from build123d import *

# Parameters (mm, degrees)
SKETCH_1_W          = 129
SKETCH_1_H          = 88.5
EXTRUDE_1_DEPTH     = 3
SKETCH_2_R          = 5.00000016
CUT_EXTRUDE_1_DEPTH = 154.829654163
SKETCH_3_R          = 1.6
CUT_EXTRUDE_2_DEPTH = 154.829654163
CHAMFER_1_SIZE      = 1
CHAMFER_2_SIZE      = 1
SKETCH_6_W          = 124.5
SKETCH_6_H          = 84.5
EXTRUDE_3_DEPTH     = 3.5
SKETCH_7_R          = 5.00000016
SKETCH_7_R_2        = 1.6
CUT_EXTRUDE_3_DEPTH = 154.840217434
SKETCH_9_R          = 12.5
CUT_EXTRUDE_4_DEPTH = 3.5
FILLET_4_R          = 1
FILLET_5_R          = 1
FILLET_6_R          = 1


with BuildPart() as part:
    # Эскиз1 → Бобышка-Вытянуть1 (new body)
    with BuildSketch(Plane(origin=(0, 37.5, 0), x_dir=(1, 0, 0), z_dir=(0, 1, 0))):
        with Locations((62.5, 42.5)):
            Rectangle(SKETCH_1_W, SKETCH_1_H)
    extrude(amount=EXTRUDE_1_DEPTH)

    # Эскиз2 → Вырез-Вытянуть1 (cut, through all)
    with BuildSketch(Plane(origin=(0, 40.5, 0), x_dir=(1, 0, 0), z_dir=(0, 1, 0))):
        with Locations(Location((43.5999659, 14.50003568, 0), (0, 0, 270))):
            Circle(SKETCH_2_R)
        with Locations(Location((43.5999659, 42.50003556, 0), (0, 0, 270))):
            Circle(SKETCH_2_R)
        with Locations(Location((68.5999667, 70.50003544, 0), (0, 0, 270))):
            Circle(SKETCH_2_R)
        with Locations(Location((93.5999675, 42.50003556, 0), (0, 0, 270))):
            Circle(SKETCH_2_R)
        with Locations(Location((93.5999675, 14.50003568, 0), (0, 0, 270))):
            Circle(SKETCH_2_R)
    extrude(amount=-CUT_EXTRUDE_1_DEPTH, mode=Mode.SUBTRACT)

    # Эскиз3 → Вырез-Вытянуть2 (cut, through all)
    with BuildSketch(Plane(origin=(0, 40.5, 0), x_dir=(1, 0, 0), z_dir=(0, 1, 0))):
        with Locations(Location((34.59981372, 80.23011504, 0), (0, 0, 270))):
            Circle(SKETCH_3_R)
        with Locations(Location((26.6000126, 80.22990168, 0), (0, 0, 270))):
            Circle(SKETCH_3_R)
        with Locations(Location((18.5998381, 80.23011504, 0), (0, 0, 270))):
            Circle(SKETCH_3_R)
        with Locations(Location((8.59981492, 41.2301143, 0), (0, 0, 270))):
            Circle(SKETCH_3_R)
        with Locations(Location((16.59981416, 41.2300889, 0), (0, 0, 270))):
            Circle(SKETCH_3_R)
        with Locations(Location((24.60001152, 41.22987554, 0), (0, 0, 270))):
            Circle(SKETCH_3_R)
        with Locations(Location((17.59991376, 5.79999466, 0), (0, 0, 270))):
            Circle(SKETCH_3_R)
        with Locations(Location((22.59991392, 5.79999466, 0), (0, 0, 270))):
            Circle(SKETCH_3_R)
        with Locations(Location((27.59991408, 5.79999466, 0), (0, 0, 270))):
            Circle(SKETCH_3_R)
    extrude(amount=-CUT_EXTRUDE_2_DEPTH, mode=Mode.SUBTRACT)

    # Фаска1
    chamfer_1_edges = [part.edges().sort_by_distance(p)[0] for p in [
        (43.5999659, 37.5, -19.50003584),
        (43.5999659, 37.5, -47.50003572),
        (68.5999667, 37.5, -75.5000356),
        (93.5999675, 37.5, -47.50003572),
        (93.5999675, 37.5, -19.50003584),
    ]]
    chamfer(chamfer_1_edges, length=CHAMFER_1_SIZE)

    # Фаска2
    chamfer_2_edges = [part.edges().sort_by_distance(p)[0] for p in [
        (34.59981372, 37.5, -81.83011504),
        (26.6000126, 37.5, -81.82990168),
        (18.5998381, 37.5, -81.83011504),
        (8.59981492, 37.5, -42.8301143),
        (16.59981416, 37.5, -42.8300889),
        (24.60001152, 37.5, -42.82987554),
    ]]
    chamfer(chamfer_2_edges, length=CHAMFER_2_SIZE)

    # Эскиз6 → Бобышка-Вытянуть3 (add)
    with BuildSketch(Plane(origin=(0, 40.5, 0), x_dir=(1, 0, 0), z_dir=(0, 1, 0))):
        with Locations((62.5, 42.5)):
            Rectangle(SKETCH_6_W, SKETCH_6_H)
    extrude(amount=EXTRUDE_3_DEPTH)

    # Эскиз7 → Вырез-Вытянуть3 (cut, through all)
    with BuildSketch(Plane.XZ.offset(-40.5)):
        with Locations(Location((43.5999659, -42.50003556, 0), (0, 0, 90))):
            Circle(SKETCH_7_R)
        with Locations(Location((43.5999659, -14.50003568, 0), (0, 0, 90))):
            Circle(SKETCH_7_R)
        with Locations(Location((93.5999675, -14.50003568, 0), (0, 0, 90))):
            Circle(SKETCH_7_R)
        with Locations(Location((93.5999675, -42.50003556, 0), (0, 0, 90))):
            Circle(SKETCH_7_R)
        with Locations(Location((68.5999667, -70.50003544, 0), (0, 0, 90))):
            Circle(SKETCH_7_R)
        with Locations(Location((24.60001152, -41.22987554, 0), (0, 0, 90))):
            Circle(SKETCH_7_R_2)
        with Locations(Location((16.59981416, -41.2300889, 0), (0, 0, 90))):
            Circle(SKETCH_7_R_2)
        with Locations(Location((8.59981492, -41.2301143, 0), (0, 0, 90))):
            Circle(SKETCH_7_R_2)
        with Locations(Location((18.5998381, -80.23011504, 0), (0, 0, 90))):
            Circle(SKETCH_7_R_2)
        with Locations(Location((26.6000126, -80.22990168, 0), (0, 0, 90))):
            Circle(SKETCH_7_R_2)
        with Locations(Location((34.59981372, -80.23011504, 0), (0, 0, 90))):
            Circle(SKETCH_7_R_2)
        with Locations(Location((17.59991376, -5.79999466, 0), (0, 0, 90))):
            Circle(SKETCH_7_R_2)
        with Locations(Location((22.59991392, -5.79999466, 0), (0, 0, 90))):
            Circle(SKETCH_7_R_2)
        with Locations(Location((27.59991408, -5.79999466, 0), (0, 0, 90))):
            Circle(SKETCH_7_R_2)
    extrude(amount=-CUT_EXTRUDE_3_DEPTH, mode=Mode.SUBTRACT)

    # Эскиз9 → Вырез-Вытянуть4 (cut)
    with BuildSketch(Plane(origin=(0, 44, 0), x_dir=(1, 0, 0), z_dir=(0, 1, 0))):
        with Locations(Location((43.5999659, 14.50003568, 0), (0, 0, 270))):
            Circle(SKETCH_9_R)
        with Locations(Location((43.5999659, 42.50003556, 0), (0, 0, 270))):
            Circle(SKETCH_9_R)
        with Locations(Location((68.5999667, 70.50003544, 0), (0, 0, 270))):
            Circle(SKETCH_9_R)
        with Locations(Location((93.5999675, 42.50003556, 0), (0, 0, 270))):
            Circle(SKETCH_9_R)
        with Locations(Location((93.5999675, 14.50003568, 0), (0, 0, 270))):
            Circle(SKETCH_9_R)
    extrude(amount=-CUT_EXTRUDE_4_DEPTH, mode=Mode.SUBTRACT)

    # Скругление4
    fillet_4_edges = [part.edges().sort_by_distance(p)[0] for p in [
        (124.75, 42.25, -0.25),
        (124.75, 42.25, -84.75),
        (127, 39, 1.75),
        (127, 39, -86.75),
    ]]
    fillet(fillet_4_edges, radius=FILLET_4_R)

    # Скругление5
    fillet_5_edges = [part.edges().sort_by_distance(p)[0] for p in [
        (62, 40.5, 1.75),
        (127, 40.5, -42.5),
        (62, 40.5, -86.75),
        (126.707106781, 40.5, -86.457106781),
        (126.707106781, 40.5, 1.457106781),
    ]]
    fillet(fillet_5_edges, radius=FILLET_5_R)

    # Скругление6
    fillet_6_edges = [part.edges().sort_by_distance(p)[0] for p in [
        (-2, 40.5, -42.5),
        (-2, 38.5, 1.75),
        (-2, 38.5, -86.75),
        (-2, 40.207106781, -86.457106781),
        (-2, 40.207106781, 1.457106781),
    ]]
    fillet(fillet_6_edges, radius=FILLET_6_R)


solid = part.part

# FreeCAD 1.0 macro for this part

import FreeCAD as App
import Part
import Sketcher

V = App.Vector


def edges_at(feature, points):
    """Names of the edges that pass closest to the given points."""
    edges = feature.Shape.Edges
    near = lambda p: min(range(len(edges)), key=lambda i: edges[i].distToShape(Part.Vertex(*p))[0])
    return sorted({f"Edge{near(p) + 1}" for p in points})

doc = App.newDocument("Part")
body = doc.addObject("PartDesign::Body", "Body")

# Sketch on XZ plane
sketch1 = body.newObject("Sketcher::SketchObject", "Sketch")
sketch1.AttachmentSupport = (doc.getObject("XZ_Plane"), [""])
sketch1.MapMode = "FlatFace"
sketch1.AttachmentOffset = App.Placement(V(0, 0, -37.5), App.Rotation())
sketch1.addGeometry([
    Part.LineSegment(V(-2, -86.75, 0), V(-2, 1.75, 0)),
    Part.LineSegment(V(-2, 1.75, 0), V(127, 1.75, 0)),
    Part.LineSegment(V(127, 1.75, 0), V(127, -86.75, 0)),
    Part.LineSegment(V(127, -86.75, 0), V(-2, -86.75, 0)),
], False)
sketch1.addConstraint([
    Sketcher.Constraint("Coincident", 0, 2, 1, 1),
    Sketcher.Constraint("Coincident", 1, 2, 2, 1),
    Sketcher.Constraint("Coincident", 2, 2, 3, 1),
    Sketcher.Constraint("Coincident", 3, 2, 0, 1),
    Sketcher.Constraint("Vertical", 0),
    Sketcher.Constraint("Horizontal", 1),
    Sketcher.Constraint("Vertical", 2),
    Sketcher.Constraint("Horizontal", 3),
    Sketcher.Constraint("DistanceX", 1, 1, 1, 2, 129.0),
    Sketcher.Constraint("DistanceY", 0, 1, 0, 2, 88.5),
    Sketcher.Constraint("DistanceX", 0, 2, -1, 1, 2.0),
    Sketcher.Constraint("DistanceY", -1, 1, 0, 2, 1.75),
])
pad1 = body.newObject("PartDesign::Pad", "Pad")
pad1.Profile = sketch1
pad1.Length = 3
pad1.Reversed = True

# Sketch on XZ plane
sketch2 = body.newObject("Sketcher::SketchObject", "Sketch001")
sketch2.AttachmentSupport = (doc.getObject("XZ_Plane"), [""])
sketch2.MapMode = "FlatFace"
sketch2.AttachmentOffset = App.Placement(V(0, 0, -40.5), App.Rotation())
sketch2.addGeometry([
    Part.Circle(V(43.599966, -14.500036, 0), V(0, 0, 1), 5),  # 0
    Part.Circle(V(43.599966, -42.500036, 0), V(0, 0, 1), 5),  # 1
    Part.Circle(V(68.599967, -70.500035, 0), V(0, 0, 1), 5),  # 2
    Part.Circle(V(93.599968, -42.500036, 0), V(0, 0, 1), 5),  # 3
    Part.Circle(V(93.599968, -14.500036, 0), V(0, 0, 1), 5),  # 4
], False)
sketch2.addConstraint([
    Sketcher.Constraint("Equal", 0, 1),
    Sketcher.Constraint("Equal", 1, 2),
    Sketcher.Constraint("Equal", 2, 3),
    Sketcher.Constraint("Equal", 3, 4),
    Sketcher.Constraint("Horizontal", 1, 3, 3, 3),
    Sketcher.Constraint("Horizontal", 0, 3, 4, 3),
    Sketcher.Constraint("Vertical", 0, 3, 1, 3),
    Sketcher.Constraint("Vertical", 3, 3, 4, 3),
    Sketcher.Constraint("Diameter", 0, 10.0),
    Sketcher.Constraint("DistanceY", 1, 3, 0, 3, 28.0),
    Sketcher.Constraint("DistanceX", 1, 3, 2, 3, 25.000001),
    Sketcher.Constraint("DistanceY", 2, 3, 1, 3, 28.0),
    Sketcher.Constraint("DistanceX", 2, 3, 3, 3, 25.000001),
    Sketcher.Constraint("DistanceX", -1, 1, 0, 3, 43.599966),
    Sketcher.Constraint("DistanceY", 0, 3, -1, 1, 14.500036),
])
pocket1 = body.newObject("PartDesign::Pocket", "Pocket")
pocket1.Profile = sketch2
pocket1.Type = "ThroughAll"
pocket1.Reversed = True

# Sketch on XZ plane
sketch3 = body.newObject("Sketcher::SketchObject", "Sketch002")
sketch3.AttachmentSupport = (doc.getObject("XZ_Plane"), [""])
sketch3.MapMode = "FlatFace"
sketch3.AttachmentOffset = App.Placement(V(0, 0, -40.5), App.Rotation())
sketch3.addGeometry([
    Part.Circle(V(34.599814, -80.230115, 0), V(0, 0, 1), 1.6),  # 0
    Part.Circle(V(26.600013, -80.229902, 0), V(0, 0, 1), 1.6),  # 1
    Part.Circle(V(18.599838, -80.230115, 0), V(0, 0, 1), 1.6),  # 2
    Part.Circle(V(8.599815, -41.230114, 0), V(0, 0, 1), 1.6),  # 3
    Part.Circle(V(16.599814, -41.230089, 0), V(0, 0, 1), 1.6),  # 4
    Part.Circle(V(24.600012, -41.229876, 0), V(0, 0, 1), 1.6),  # 5
    Part.Circle(V(17.599914, -5.799995, 0), V(0, 0, 1), 1.6),  # 6
    Part.Circle(V(22.599914, -5.799995, 0), V(0, 0, 1), 1.6),  # 7
    Part.Circle(V(27.599914, -5.799995, 0), V(0, 0, 1), 1.6),  # 8
], False)
sketch3.addConstraint([
    Sketcher.Constraint("Equal", 0, 1),
    Sketcher.Constraint("Equal", 1, 2),
    Sketcher.Constraint("Equal", 2, 3),
    Sketcher.Constraint("Equal", 3, 4),
    Sketcher.Constraint("Equal", 4, 5),
    Sketcher.Constraint("Equal", 5, 6),
    Sketcher.Constraint("Equal", 6, 7),
    Sketcher.Constraint("Equal", 7, 8),
    Sketcher.Constraint("Horizontal", 0, 3, 2, 3),
    Sketcher.Constraint("Horizontal", 6, 3, 7, 3),
    Sketcher.Constraint("Horizontal", 7, 3, 8, 3),
    Sketcher.Constraint("Diameter", 0, 3.2),
    Sketcher.Constraint("DistanceY", 2, 3, 3, 3, 39.000001),
    Sketcher.Constraint("DistanceX", 3, 3, 0, 3, 25.999999),
    Sketcher.Constraint("DistanceX", 3, 3, 4, 3, 7.999999),
    Sketcher.Constraint("DistanceX", 5, 3, 1, 3, 2.000001),
    Sketcher.Constraint("DistanceX", 6, 3, 7, 3, 5.0),
    Sketcher.Constraint("DistanceX", 7, 3, 8, 3, 5.0),
    Sketcher.Constraint("DistanceY", 1, 3, -1, 1, 80.229902),
    Sketcher.Constraint("DistanceX", 1, 3, 0, 3, 7.999801),
    Sketcher.Constraint("DistanceX", 4, 3, 6, 3, 1.0001),
    Sketcher.Constraint("DistanceX", -1, 1, 2, 3, 18.599838),
    Sketcher.Constraint("DistanceY", 4, 3, -1, 1, 41.230089),
    Sketcher.Constraint("DistanceX", -1, 1, 5, 3, 24.600012),
    Sketcher.Constraint("DistanceY", 3, 3, 5, 3, 0.000239),
    Sketcher.Constraint("DistanceY", 5, 3, 6, 3, 35.429881),
    Sketcher.Constraint("DistanceY", 0, 3, -1, 1, 80.230115),
])
pocket2 = body.newObject("PartDesign::Pocket", "Pocket001")
pocket2.Profile = sketch3
pocket2.Type = "ThroughAll"
pocket2.Reversed = True
doc.recompute()

chamfer = body.newObject("PartDesign::Chamfer", "Chamfer")
chamfer.Base = (pocket2, edges_at(pocket2, [
    (43.6, 37.5, -19.5),
    (43.6, 37.5, -47.5),
    (68.6, 37.5, -75.5),
    (93.6, 37.5, -47.5),
    (93.6, 37.5, -19.5),
]))
chamfer.Size = 1
doc.recompute()

chamfer2 = body.newObject("PartDesign::Chamfer", "Chamfer001")
chamfer2.Base = (chamfer, edges_at(chamfer, [
    (34.6, 37.5, -81.83),
    (26.6, 37.5, -81.83),
    (18.6, 37.5, -81.83),
    (8.6, 37.5, -42.83),
    (16.6, 37.5, -42.83),
    (24.6, 37.5, -42.83),
]))
chamfer2.Size = 1

# Sketch on XZ plane
sketch4 = body.newObject("Sketcher::SketchObject", "Sketch003")
sketch4.AttachmentSupport = (doc.getObject("XZ_Plane"), [""])
sketch4.MapMode = "FlatFace"
sketch4.AttachmentOffset = App.Placement(V(0, 0, -40.5), App.Rotation())
sketch4.addGeometry([
    Part.LineSegment(V(0.25, -84.75, 0), V(0.25, -0.25, 0)),
    Part.LineSegment(V(0.25, -0.25, 0), V(124.75, -0.25, 0)),
    Part.LineSegment(V(124.75, -0.25, 0), V(124.75, -84.75, 0)),
    Part.LineSegment(V(124.75, -84.75, 0), V(0.25, -84.75, 0)),
], False)
sketch4.addConstraint([
    Sketcher.Constraint("Coincident", 0, 2, 1, 1),
    Sketcher.Constraint("Coincident", 1, 2, 2, 1),
    Sketcher.Constraint("Coincident", 2, 2, 3, 1),
    Sketcher.Constraint("Coincident", 3, 2, 0, 1),
    Sketcher.Constraint("Vertical", 0),
    Sketcher.Constraint("Horizontal", 1),
    Sketcher.Constraint("Vertical", 2),
    Sketcher.Constraint("Horizontal", 3),
    Sketcher.Constraint("DistanceX", 1, 1, 1, 2, 124.5),
    Sketcher.Constraint("DistanceY", 0, 1, 0, 2, 84.5),
    Sketcher.Constraint("DistanceX", -1, 1, 0, 2, 0.25),
    Sketcher.Constraint("DistanceY", 0, 2, -1, 1, 0.25),
])
pad2 = body.newObject("PartDesign::Pad", "Pad001")
pad2.Profile = sketch4
pad2.Length = 3.5
pad2.Reversed = True

# Sketch on XZ plane
sketch5 = body.newObject("Sketcher::SketchObject", "Sketch004")
sketch5.AttachmentSupport = (doc.getObject("XZ_Plane"), [""])
sketch5.MapMode = "FlatFace"
sketch5.AttachmentOffset = App.Placement(V(0, 0, -40.5), App.Rotation())
sketch5.addGeometry([
    Part.Circle(V(43.599966, -42.500036, 0), V(0, 0, 1), 5),  # 0
    Part.Circle(V(43.599966, -14.500036, 0), V(0, 0, 1), 5),  # 1
    Part.Circle(V(93.599968, -14.500036, 0), V(0, 0, 1), 5),  # 2
    Part.Circle(V(93.599968, -42.500036, 0), V(0, 0, 1), 5),  # 3
    Part.Circle(V(68.599967, -70.500035, 0), V(0, 0, 1), 5),  # 4
    Part.Circle(V(24.600012, -41.229876, 0), V(0, 0, 1), 1.6),  # 5
    Part.Circle(V(16.599814, -41.230089, 0), V(0, 0, 1), 1.6),  # 6
    Part.Circle(V(8.599815, -41.230114, 0), V(0, 0, 1), 1.6),  # 7
    Part.Circle(V(18.599838, -80.230115, 0), V(0, 0, 1), 1.6),  # 8
    Part.Circle(V(26.600013, -80.229902, 0), V(0, 0, 1), 1.6),  # 9
    Part.Circle(V(34.599814, -80.230115, 0), V(0, 0, 1), 1.6),  # 10
    Part.Circle(V(17.599914, -5.799995, 0), V(0, 0, 1), 1.6),  # 11
    Part.Circle(V(22.599914, -5.799995, 0), V(0, 0, 1), 1.6),  # 12
    Part.Circle(V(27.599914, -5.799995, 0), V(0, 0, 1), 1.6),  # 13
], False)
sketch5.addConstraint([
    Sketcher.Constraint("Equal", 0, 1),
    Sketcher.Constraint("Equal", 1, 2),
    Sketcher.Constraint("Equal", 2, 3),
    Sketcher.Constraint("Equal", 3, 4),
    Sketcher.Constraint("Equal", 5, 6),
    Sketcher.Constraint("Equal", 6, 7),
    Sketcher.Constraint("Equal", 7, 8),
    Sketcher.Constraint("Equal", 8, 9),
    Sketcher.Constraint("Equal", 9, 10),
    Sketcher.Constraint("Equal", 10, 11),
    Sketcher.Constraint("Equal", 11, 12),
    Sketcher.Constraint("Equal", 12, 13),
    Sketcher.Constraint("Horizontal", 1, 3, 2, 3),
    Sketcher.Constraint("Horizontal", 0, 3, 3, 3),
    Sketcher.Constraint("Horizontal", 8, 3, 10, 3),
    Sketcher.Constraint("Horizontal", 11, 3, 12, 3),
    Sketcher.Constraint("Horizontal", 12, 3, 13, 3),
    Sketcher.Constraint("Vertical", 0, 3, 1, 3),
    Sketcher.Constraint("Vertical", 2, 3, 3, 3),
    Sketcher.Constraint("Diameter", 0, 10.0),
    Sketcher.Constraint("Diameter", 5, 3.2),
    Sketcher.Constraint("DistanceY", 0, 3, 1, 3, 28.0),
    Sketcher.Constraint("DistanceX", 1, 3, 2, 3, 50.000002),
    Sketcher.Constraint("DistanceX", 0, 3, 4, 3, 25.000001),
    Sketcher.Constraint("DistanceY", 4, 3, 0, 3, 28.0),
    Sketcher.Constraint("DistanceX", 7, 3, 6, 3, 7.999999),
    Sketcher.Constraint("DistanceY", 8, 3, 7, 3, 39.000001),
    Sketcher.Constraint("DistanceX", 5, 3, 9, 3, 2.000001),
    Sketcher.Constraint("DistanceX", 11, 3, 12, 3, 5.0),
    Sketcher.Constraint("DistanceX", 12, 3, 13, 3, 5.0),
    Sketcher.Constraint("DistanceY", 9, 3, -1, 1, 80.229902),
    Sketcher.Constraint("DistanceX", 6, 3, 9, 3, 10.000198),
    Sketcher.Constraint("DistanceX", 9, 3, 10, 3, 7.999801),
    Sketcher.Constraint("DistanceX", 6, 3, 11, 3, 1.0001),
    Sketcher.Constraint("DistanceX", -1, 1, 5, 3, 24.600012),
    Sketcher.Constraint("DistanceY", 6, 3, -1, 1, 41.230089),
    Sketcher.Constraint("DistanceX", -1, 1, 8, 3, 18.599838),
    Sketcher.Constraint("DistanceY", 0, 3, 5, 3, 1.27016),
    Sketcher.Constraint("DistanceX", 6, 3, 0, 3, 27.000152),
    Sketcher.Constraint("DistanceY", 7, 3, 5, 3, 0.000239),
    Sketcher.Constraint("DistanceY", 1, 3, 11, 3, 8.700041),
    Sketcher.Constraint("DistanceY", 0, 3, -1, 1, 42.500036),
])
pocket3 = body.newObject("PartDesign::Pocket", "Pocket002")
pocket3.Profile = sketch5
pocket3.Type = "ThroughAll"

# Sketch on XZ plane
sketch6 = body.newObject("Sketcher::SketchObject", "Sketch005")
sketch6.AttachmentSupport = (doc.getObject("XZ_Plane"), [""])
sketch6.MapMode = "FlatFace"
sketch6.AttachmentOffset = App.Placement(V(0, 0, -44), App.Rotation())
sketch6.addGeometry([
    Part.Circle(V(43.599966, -14.500036, 0), V(0, 0, 1), 12.5),  # 0
    Part.Circle(V(43.599966, -42.500036, 0), V(0, 0, 1), 12.5),  # 1
    Part.Circle(V(68.599967, -70.500035, 0), V(0, 0, 1), 12.5),  # 2
    Part.Circle(V(93.599968, -42.500036, 0), V(0, 0, 1), 12.5),  # 3
    Part.Circle(V(93.599968, -14.500036, 0), V(0, 0, 1), 12.5),  # 4
], False)
sketch6.addConstraint([
    Sketcher.Constraint("Equal", 0, 1),
    Sketcher.Constraint("Equal", 1, 2),
    Sketcher.Constraint("Equal", 2, 3),
    Sketcher.Constraint("Equal", 3, 4),
    Sketcher.Constraint("Horizontal", 1, 3, 3, 3),
    Sketcher.Constraint("Horizontal", 0, 3, 4, 3),
    Sketcher.Constraint("Vertical", 0, 3, 1, 3),
    Sketcher.Constraint("Vertical", 3, 3, 4, 3),
    Sketcher.Constraint("Diameter", 0, 25.0),
    Sketcher.Constraint("DistanceY", 1, 3, 0, 3, 28.0),
    Sketcher.Constraint("DistanceX", 1, 3, 2, 3, 25.000001),
    Sketcher.Constraint("DistanceY", 2, 3, 1, 3, 28.0),
    Sketcher.Constraint("DistanceX", 2, 3, 3, 3, 25.000001),
    Sketcher.Constraint("DistanceX", -1, 1, 0, 3, 43.599966),
    Sketcher.Constraint("DistanceY", 0, 3, -1, 1, 14.500036),
])
pocket4 = body.newObject("PartDesign::Pocket", "Pocket003")
pocket4.Profile = sketch6
pocket4.Length = 3.5
pocket4.Reversed = True
doc.recompute()

fillet = body.newObject("PartDesign::Fillet", "Fillet")
fillet.Base = (pocket4, edges_at(pocket4, [
    (124.75, 42.25, -0.25),
    (124.75, 42.25, -84.75),
    (127, 39, 1.75),
    (127, 39, -86.75),
]))
fillet.Radius = 1
doc.recompute()

fillet2 = body.newObject("PartDesign::Fillet", "Fillet001")
fillet2.Base = (fillet, edges_at(fillet, [
    (62, 40.5, 1.75),
    (127, 40.5, -42.5),
    (62, 40.5, -86.75),
    (126.707, 40.5, -86.457),
    (126.707, 40.5, 1.457),
]))
fillet2.Radius = 1
doc.recompute()

fillet3 = body.newObject("PartDesign::Fillet", "Fillet002")
fillet3.Base = (fillet2, edges_at(fillet2, [
    (-2, 40.5, -42.5),
    (-2, 38.5, 1.75),
    (-2, 38.5, -86.75),
    (-2, 40.207, -86.457),
    (-2, 40.207, 1.457),
]))
fillet3.Radius = 1

doc.recompute()
